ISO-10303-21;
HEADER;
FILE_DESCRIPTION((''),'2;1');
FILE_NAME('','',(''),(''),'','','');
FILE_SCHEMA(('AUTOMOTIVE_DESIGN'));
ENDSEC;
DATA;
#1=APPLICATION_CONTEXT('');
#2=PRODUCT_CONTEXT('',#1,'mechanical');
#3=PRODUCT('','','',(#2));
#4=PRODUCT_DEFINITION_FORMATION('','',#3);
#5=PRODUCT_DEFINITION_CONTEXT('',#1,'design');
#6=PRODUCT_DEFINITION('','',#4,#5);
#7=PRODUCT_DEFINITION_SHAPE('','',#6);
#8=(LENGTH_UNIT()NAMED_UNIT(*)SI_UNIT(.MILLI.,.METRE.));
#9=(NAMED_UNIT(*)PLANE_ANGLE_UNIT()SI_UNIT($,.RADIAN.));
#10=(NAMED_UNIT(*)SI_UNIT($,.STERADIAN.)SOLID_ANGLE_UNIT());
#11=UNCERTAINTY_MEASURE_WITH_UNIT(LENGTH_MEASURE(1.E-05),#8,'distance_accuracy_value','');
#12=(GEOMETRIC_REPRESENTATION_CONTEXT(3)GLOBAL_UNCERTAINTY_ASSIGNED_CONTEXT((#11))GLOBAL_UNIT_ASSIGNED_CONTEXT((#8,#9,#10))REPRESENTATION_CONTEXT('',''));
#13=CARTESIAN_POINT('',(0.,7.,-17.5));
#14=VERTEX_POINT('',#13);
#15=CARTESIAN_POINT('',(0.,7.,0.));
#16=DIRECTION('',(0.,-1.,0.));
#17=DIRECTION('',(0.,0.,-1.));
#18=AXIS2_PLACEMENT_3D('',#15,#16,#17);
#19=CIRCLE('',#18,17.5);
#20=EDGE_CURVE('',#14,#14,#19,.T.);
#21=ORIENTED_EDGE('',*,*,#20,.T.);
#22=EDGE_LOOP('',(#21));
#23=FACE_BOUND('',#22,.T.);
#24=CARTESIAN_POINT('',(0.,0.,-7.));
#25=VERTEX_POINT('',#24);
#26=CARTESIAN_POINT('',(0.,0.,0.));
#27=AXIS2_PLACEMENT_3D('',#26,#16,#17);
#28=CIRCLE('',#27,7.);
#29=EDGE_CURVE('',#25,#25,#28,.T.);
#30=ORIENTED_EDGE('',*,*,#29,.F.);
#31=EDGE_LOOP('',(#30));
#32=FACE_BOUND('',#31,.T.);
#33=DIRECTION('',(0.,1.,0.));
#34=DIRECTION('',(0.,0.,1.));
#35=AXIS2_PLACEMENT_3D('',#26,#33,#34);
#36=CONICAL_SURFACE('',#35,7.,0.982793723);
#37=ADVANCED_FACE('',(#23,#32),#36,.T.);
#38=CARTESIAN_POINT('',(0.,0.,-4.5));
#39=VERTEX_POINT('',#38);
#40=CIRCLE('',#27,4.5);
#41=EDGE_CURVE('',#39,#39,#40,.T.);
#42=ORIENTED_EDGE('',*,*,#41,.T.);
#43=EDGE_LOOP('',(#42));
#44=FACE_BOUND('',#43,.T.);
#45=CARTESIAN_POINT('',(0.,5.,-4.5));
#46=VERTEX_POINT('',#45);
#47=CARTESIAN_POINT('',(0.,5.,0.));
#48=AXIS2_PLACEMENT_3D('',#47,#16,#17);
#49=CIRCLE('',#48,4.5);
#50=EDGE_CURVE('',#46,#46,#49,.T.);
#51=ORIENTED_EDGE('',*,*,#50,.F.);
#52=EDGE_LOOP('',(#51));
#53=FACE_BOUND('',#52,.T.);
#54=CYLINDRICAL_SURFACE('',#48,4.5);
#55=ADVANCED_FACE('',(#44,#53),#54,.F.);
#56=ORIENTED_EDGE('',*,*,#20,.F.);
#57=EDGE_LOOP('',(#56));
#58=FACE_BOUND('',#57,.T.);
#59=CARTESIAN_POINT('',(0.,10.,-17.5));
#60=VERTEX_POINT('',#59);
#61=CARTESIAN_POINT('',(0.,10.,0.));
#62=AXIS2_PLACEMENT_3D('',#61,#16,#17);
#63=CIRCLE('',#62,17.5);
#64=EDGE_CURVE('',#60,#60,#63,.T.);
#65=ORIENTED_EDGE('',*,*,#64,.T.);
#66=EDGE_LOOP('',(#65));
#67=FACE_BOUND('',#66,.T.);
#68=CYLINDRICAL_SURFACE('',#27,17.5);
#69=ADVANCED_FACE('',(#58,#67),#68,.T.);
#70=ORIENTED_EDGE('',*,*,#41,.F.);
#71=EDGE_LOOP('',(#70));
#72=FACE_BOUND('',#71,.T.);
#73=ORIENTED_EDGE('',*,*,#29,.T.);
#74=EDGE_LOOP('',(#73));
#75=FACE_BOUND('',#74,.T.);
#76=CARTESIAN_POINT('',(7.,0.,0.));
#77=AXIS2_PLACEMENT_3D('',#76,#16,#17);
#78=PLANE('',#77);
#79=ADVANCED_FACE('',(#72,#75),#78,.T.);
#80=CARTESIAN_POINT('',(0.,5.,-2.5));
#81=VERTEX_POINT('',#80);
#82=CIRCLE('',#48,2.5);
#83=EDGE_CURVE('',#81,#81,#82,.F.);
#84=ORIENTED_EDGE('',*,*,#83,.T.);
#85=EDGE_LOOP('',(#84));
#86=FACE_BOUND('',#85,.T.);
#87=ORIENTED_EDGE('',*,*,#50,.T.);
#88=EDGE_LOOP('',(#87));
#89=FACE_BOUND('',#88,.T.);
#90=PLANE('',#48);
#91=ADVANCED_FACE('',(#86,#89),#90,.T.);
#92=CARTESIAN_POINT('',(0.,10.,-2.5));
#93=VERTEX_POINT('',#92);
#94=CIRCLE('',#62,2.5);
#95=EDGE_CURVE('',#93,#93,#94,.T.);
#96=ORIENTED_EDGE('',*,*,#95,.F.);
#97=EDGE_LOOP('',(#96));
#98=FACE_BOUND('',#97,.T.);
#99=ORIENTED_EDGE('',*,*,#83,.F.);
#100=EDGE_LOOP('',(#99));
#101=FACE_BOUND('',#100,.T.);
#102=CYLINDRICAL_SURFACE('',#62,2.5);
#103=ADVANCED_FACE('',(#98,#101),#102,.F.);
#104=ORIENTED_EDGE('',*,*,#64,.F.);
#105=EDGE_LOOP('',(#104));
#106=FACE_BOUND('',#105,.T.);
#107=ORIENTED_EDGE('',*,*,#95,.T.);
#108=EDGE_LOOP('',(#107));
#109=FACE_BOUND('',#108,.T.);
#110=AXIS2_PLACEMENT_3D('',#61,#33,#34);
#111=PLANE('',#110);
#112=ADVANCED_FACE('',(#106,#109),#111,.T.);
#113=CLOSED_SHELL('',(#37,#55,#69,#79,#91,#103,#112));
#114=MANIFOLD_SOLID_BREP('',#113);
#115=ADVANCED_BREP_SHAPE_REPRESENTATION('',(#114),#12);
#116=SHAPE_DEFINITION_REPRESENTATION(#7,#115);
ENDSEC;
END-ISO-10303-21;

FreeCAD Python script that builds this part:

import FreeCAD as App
import Part
import Sketcher
from FreeCAD import Vector

doc = App.newDocument("Part")
body = doc.addObject("PartDesign::Body", "Body")

# Sketch on XY plane
sketch1 = doc.addObject("Sketcher::SketchObject", "Sketch")
body.addObject(sketch1)
sketch1.AttachmentSupport = (doc.XY_Plane, [""])
sketch1.MapMode = "FlatFace"
sketch1.addGeometry(Part.LineSegment(Vector(0, 10, 0), Vector(0, 0, 0)), False)
sketch1.addGeometry(Part.LineSegment(Vector(0, 0, 0), Vector(7, 0, 0)), False)
sketch1.addGeometry(Part.LineSegment(Vector(7, 0, 0), Vector(17.5, 7, 0)), False)
sketch1.addGeometry(Part.LineSegment(Vector(17.5, 7, 0), Vector(17.5, 10, 0)), False)
sketch1.addGeometry(Part.LineSegment(Vector(17.5, 10, 0), Vector(0, 10, 0)), False)
sketch1.addConstraint(Sketcher.Constraint("Coincident", 0, 2, 1, 1))
sketch1.addConstraint(Sketcher.Constraint("Coincident", 1, 2, 2, 1))
sketch1.addConstraint(Sketcher.Constraint("Coincident", 2, 2, 3, 1))
sketch1.addConstraint(Sketcher.Constraint("Coincident", 3, 2, 4, 1))
sketch1.addConstraint(Sketcher.Constraint("Coincident", 4, 2, 0, 1))
sketch1.addConstraint(Sketcher.Constraint("Vertical", 0))
sketch1.addConstraint(Sketcher.Constraint("Horizontal", 1))
sketch1.addConstraint(Sketcher.Constraint("Vertical", 3))
sketch1.addConstraint(Sketcher.Constraint("Horizontal", 4))
sketch1.addConstraint(Sketcher.Constraint("Coincident", 0, 2, -1, 1))
sketch1.addConstraint(Sketcher.Constraint("DistanceX", 1, 1, 1, 2, 7.0))
sketch1.addConstraint(Sketcher.Constraint("DistanceY", 0, 2, 0, 1, 10.0))
sketch1.addConstraint(Sketcher.Constraint("DistanceY", 3, 1, 3, 2, 3.0))
sketch1.addConstraint(Sketcher.Constraint("DistanceX", 4, 2, 4, 1, 17.5))
revolution = doc.addObject("PartDesign::Revolution", "Revolution")
body.addObject(revolution)
revolution.Profile = sketch1
revolution.ReferenceAxis = (sketch1, ["V_Axis"])
revolution.Angle = 360

# Sketch on XZ plane
sketch2 = doc.addObject("Sketcher::SketchObject", "Sketch001")
body.addObject(sketch2)
sketch2.AttachmentSupport = (doc.XZ_Plane, [""])
sketch2.MapMode = "FlatFace"
sketch2.addGeometry(Part.Circle(Vector(0, 0, 0), Vector(0, 0, 1), 2.5), False)
sketch2.addConstraint(Sketcher.Constraint("Coincident", 0, 3, -1, 1))
sketch2.addConstraint(Sketcher.Constraint("Diameter", 0, 5.0))
pocket1 = doc.addObject("PartDesign::Pocket", "Pocket")
body.addObject(pocket1)
pocket1.Profile = sketch2
pocket1.Type = "ThroughAll"

# Sketch on XZ plane
sketch3 = doc.addObject("Sketcher::SketchObject", "Sketch002")
body.addObject(sketch3)
sketch3.AttachmentSupport = (doc.XZ_Plane, [""])
sketch3.MapMode = "FlatFace"
sketch3.addGeometry(Part.Circle(Vector(0, 0, 0), Vector(0, 0, 1), 4.5), False)
sketch3.addConstraint(Sketcher.Constraint("Coincident", 0, 3, -1, 1))
sketch3.addConstraint(Sketcher.Constraint("Diameter", 0, 9.0))
pocket2 = doc.addObject("PartDesign::Pocket", "Pocket001")
body.addObject(pocket2)
pocket2.Profile = sketch3
pocket2.Length = 5

doc.recompute()
